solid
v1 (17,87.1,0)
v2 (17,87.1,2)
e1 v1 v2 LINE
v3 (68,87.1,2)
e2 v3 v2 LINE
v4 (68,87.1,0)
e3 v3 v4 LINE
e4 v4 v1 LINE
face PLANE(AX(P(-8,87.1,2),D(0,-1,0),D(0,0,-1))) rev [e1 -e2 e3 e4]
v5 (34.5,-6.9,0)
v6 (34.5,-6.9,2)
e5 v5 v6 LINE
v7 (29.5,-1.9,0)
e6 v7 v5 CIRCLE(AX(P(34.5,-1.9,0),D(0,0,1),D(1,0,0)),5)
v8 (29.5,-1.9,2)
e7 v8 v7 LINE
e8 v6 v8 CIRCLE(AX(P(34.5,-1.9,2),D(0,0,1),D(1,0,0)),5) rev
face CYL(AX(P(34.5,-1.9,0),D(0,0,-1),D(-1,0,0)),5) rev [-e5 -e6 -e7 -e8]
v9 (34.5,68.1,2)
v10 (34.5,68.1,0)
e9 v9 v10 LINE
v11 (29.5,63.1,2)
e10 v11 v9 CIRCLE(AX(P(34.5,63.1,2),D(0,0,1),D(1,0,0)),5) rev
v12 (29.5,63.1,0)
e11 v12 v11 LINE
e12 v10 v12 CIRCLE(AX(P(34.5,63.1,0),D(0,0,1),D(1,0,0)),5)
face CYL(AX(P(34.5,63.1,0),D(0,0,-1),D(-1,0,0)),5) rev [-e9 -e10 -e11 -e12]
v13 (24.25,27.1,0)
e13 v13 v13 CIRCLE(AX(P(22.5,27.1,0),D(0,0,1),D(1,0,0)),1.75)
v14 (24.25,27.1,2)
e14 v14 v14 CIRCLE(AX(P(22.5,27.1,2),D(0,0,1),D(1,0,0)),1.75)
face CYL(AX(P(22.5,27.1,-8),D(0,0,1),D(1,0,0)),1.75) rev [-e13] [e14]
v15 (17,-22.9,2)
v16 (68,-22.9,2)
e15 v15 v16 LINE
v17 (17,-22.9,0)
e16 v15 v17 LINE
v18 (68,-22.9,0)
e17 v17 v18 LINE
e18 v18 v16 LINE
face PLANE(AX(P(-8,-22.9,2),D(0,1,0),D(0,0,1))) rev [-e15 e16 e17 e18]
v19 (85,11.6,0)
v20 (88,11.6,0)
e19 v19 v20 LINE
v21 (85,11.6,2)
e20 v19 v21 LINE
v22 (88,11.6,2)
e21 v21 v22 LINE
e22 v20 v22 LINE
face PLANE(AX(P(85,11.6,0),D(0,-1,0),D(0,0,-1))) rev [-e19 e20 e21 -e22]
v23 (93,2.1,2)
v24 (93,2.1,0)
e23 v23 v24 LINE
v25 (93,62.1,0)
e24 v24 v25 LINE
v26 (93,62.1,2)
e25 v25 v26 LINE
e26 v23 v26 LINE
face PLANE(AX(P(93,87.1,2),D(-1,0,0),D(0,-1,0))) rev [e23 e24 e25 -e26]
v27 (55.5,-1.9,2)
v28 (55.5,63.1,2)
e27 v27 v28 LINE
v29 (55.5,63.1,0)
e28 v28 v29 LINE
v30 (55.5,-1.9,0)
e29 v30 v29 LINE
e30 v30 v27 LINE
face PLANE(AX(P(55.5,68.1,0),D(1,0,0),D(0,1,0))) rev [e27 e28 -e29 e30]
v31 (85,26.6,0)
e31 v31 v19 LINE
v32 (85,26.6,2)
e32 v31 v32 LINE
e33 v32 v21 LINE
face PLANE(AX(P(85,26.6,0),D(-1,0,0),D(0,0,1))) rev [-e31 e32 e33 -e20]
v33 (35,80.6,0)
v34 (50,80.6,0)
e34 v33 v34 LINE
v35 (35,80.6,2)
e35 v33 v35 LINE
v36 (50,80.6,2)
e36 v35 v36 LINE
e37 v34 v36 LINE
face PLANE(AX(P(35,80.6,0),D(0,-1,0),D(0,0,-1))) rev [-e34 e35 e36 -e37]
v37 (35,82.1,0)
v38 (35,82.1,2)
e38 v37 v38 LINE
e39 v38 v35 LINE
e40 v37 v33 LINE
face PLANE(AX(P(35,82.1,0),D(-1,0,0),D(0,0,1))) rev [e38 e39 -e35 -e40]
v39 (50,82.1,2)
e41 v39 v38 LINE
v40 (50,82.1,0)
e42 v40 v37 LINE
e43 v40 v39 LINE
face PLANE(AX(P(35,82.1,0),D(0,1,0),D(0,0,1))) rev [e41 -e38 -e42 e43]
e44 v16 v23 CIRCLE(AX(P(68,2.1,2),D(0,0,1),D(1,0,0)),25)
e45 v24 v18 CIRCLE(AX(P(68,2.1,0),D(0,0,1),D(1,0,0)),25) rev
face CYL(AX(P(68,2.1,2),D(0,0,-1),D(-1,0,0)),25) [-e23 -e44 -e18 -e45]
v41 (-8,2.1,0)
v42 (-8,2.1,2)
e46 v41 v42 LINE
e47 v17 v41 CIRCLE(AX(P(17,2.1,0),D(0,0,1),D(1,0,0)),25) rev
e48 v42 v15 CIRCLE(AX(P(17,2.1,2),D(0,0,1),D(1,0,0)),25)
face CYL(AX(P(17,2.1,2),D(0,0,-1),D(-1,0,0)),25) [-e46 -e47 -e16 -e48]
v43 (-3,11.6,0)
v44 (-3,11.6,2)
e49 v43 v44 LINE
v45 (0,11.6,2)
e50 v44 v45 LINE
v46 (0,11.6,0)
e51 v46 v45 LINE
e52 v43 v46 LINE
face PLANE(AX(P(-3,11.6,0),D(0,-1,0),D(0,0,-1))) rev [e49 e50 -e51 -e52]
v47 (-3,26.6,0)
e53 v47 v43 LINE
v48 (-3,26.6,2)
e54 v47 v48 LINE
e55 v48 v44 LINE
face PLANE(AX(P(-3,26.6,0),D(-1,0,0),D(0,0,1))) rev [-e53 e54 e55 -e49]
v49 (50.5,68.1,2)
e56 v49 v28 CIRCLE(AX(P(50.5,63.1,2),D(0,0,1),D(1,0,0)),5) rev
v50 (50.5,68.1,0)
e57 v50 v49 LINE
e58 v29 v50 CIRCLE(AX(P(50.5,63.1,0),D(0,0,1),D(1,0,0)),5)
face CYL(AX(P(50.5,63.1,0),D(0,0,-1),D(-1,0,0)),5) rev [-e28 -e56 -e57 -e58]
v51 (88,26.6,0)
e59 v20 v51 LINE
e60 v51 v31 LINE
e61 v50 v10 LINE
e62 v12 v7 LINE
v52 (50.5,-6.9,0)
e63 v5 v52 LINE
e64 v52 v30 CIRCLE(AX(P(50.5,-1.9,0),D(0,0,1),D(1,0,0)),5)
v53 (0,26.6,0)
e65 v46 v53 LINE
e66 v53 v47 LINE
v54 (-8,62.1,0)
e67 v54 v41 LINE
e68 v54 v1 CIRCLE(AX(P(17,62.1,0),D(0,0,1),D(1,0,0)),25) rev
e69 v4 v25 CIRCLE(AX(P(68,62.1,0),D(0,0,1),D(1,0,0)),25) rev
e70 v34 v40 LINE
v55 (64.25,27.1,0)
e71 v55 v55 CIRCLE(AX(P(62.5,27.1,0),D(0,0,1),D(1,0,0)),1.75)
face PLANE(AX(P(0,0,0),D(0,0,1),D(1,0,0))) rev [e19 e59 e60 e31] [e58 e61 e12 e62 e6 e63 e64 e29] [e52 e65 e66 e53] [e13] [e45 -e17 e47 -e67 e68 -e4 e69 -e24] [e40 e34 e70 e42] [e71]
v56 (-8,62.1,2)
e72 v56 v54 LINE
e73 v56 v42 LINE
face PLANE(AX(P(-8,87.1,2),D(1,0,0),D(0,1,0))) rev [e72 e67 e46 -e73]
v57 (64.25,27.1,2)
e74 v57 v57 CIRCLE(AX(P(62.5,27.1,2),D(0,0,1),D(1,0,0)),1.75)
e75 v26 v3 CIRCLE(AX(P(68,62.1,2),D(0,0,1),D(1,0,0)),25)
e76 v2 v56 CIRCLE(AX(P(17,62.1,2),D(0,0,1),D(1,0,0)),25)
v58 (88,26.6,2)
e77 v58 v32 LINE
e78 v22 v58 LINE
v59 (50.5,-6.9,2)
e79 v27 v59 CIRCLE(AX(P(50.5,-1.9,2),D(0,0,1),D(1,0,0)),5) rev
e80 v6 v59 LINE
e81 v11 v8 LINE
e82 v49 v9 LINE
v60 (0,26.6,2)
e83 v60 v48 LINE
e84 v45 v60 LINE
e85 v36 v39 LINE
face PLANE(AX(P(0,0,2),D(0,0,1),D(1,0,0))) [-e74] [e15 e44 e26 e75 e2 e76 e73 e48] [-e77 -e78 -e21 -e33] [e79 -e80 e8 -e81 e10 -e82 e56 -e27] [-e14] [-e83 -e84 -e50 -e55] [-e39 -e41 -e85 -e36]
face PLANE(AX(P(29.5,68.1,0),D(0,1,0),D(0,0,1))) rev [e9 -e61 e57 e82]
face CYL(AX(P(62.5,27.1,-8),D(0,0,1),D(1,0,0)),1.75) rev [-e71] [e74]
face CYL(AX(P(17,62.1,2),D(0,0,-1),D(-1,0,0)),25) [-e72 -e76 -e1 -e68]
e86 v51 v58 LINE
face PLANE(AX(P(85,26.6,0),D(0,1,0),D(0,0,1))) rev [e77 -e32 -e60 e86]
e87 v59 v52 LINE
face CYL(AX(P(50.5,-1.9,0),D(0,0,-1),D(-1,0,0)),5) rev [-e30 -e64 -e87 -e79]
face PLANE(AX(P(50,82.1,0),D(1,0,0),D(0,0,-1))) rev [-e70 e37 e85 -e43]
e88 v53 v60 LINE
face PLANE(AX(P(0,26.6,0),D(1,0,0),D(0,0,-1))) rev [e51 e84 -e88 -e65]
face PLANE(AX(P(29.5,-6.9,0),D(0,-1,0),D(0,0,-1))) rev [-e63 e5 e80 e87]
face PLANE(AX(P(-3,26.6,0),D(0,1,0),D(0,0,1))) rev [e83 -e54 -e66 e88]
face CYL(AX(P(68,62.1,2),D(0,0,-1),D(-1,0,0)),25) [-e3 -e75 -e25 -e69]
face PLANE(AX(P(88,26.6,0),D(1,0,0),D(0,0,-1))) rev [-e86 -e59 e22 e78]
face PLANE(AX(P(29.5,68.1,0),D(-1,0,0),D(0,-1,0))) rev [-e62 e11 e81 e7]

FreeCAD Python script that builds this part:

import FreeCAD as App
import Part
import Sketcher
from FreeCAD import Vector
Q = App.Units.Quantity


def edges_at(feature, points):
    """Names of the edges that pass closest to the given points."""
    edges = feature.Shape.Edges
    near = lambda p: min(range(len(edges)), key=lambda i: edges[i].distToShape(Part.Vertex(*p))[0])
    return sorted({f"Edge{near(p) + 1}" for p in points})


def add_polygon(sketch, points):
    """Adds a closed chain of lines whose ends are joined by coincident constraints."""
    first, n = sketch.GeometryCount, len(points)
    for a, b in zip(points, points[1:] + points[:1]):
        sketch.addGeometry(Part.LineSegment(App.Vector(*a, 0), App.Vector(*b, 0)), False)
    for i in range(n):
        sketch.addConstraint(Sketcher.Constraint("Coincident", first + i, 2, first + (i + 1) % n, 1))

doc = App.newDocument("Part")
body = doc.addObject("PartDesign::Body", "Body")

# Sketch on XY plane
sketch1 = body.newObject("Sketcher::SketchObject", "Sketch")
sketch1.AttachmentSupport = (doc.getObject("XY_Plane"), [""])
sketch1.MapMode = "FlatFace"
add_polygon(sketch1, [(-8, 87), (-8, -23), (93, -23), (93, 87)])  # lines 0-3
sketch1.addConstraint([
    Sketcher.Constraint("Vertical", 0),
    Sketcher.Constraint("Horizontal", 1),
    Sketcher.Constraint("Vertical", 2),
    Sketcher.Constraint("Horizontal", 3),
    Sketcher.Constraint("DistanceX", 1, 1, 1, 2, Q("101 mm")),
    Sketcher.Constraint("DistanceY", 0, 2, 0, 1, Q("110 mm")),
    Sketcher.Constraint("DistanceX", 0, 2, -1, 1, Q("8 mm")),
    Sketcher.Constraint("DistanceY", 0, 2, -1, 1, Q("22.9 mm")),
])
pad1 = body.newObject("PartDesign::Pad", "Pad")
pad1.Profile = sketch1
pad1.Length = 2

# Sketch on XY plane
sketch2 = body.newObject("Sketcher::SketchObject", "Sketch001")
sketch2.AttachmentSupport = (doc.getObject("XY_Plane"), [""])
sketch2.MapMode = "FlatFace"
sketch2.AttachmentOffset = App.Placement(Vector(0, 0, 2), App.Rotation())
add_polygon(sketch2, [(35, 82.1), (35, 80.6), (50, 80.6), (50, 82.1)])  # lines 0-3
add_polygon(sketch2, [(-3, 26.6), (-3, 11.6), (0, 11.6), (0, 26.6)])  # lines 4-7
add_polygon(sketch2, [(85, 26.6), (85, 11.6), (88, 11.6), (88, 26.6)])  # lines 8-11
sketch2.addConstraint([
    Sketcher.Constraint("Vertical", 0),
    Sketcher.Constraint("Horizontal", 1),
    Sketcher.Constraint("Vertical", 2),
    Sketcher.Constraint("Horizontal", 3),
    Sketcher.Constraint("Vertical", 4),
    Sketcher.Constraint("Horizontal", 5),
    Sketcher.Constraint("Vertical", 6),
    Sketcher.Constraint("Horizontal", 7),
    Sketcher.Constraint("Vertical", 8),
    Sketcher.Constraint("Horizontal", 9),
    Sketcher.Constraint("Vertical", 10),
    Sketcher.Constraint("Horizontal", 11),
    Sketcher.Constraint("PointOnObject", 5, 2, -2),
    Sketcher.Constraint("Horizontal", 5, 2, 8, 2),
    Sketcher.Constraint("Horizontal", 7, 2, 10, 2),
    Sketcher.Constraint("Equal", 7, 9),
    Sketcher.Constraint("Equal", 3, 4),
    Sketcher.Constraint("DistanceX", 1, 1, 1, 2, Q("15 mm")),
    Sketcher.Constraint("DistanceX", 5, 1, 5, 2, Q("3 mm")),
    Sketcher.Constraint("DistanceY", 0, 2, 0, 1, Q("1.5 mm")),
    Sketcher.Constraint("DistanceX", -1, 1, 0, 2, Q("35 mm")),
    Sketcher.Constraint("DistanceX", -1, 1, 8, 2, Q("85 mm")),
    Sketcher.Constraint("DistanceY", 4, 2, 0, 2, Q("69 mm")),
    Sketcher.Constraint("DistanceY", -1, 1, 0, 2, Q("80.6 mm")),
])
pocket1 = body.newObject("PartDesign::Pocket", "Pocket")
pocket1.Profile = sketch2
pocket1.Type = "ThroughAll"
doc.recompute()

fillet = body.newObject("PartDesign::Fillet", "Fillet")
fillet.Base = (pocket1, edges_at(pocket1, [
    (-8, 87.1, 1),
    (93, 87.1, 1),
    (93, -22.9, 1),
    (-8, -22.9, 1),
]))
fillet.Radius = 25

# Sketch on XY plane
sketch3 = body.newObject("Sketcher::SketchObject", "Sketch002")
sketch3.AttachmentSupport = (doc.getObject("XY_Plane"), [""])
sketch3.MapMode = "FlatFace"
sketch3.AttachmentOffset = App.Placement(Vector(0, 0, 2), App.Rotation())
add_polygon(sketch3, [(30, 68), (30, -7), (56, -7), (56, 68)])  # lines 0-3
sketch3.addConstraint([
    Sketcher.Constraint("Vertical", 0),
    Sketcher.Constraint("Horizontal", 1),
    Sketcher.Constraint("Vertical", 2),
    Sketcher.Constraint("Horizontal", 3),
    Sketcher.Constraint("DistanceX", 1, 1, 1, 2, Q("26 mm")),
    Sketcher.Constraint("DistanceY", 0, 2, 0, 1, Q("75 mm")),
    Sketcher.Constraint("DistanceX", -1, 1, 0, 2, Q("29.5 mm")),
    Sketcher.Constraint("DistanceY", 0, 2, -1, 1, Q("6.9 mm")),
])
pocket2 = body.newObject("PartDesign::Pocket", "Pocket001")
pocket2.Profile = sketch3
pocket2.Type = "ThroughAll"
doc.recompute()

fillet2 = body.newObject("PartDesign::Fillet", "Fillet001")
fillet2.Base = (pocket2, edges_at(pocket2, [
    (29.5, -6.9, 1),
    (29.5, 68.1, 1),
    (55.5, 68.1, 1),
    (55.5, -6.9, 1),
]))
fillet2.Radius = 5

# Sketch on XY plane
sketch4 = body.newObject("Sketcher::SketchObject", "Sketch003")
sketch4.AttachmentSupport = (doc.getObject("XY_Plane"), [""])
sketch4.MapMode = "FlatFace"
sketch4.AttachmentOffset = App.Placement(Vector(0, 0, 2), App.Rotation())
sketch4.addGeometry([
    Part.Circle(Vector(22.5, 27.1, 0), Vector(0, 0, 1), 1.8),
    Part.Circle(Vector(62.5, 27.1, 0), Vector(0, 0, 1), 1.8),
], False)
sketch4.addConstraint([
    Sketcher.Constraint("Equal", 0, 1),
    Sketcher.Constraint("Horizontal", 0, 3, 1, 3),
    Sketcher.Constraint("Diameter", 0, Q("3.5 mm")),
    Sketcher.Constraint("DistanceX", 0, 3, 1, 3, Q("40 mm")),
    Sketcher.Constraint("DistanceX", -1, 1, 0, 3, Q("22.5 mm")),
    Sketcher.Constraint("DistanceY", -1, 1, 0, 3, Q("27.1 mm")),
])
pocket3 = body.newObject("PartDesign::Pocket", "Pocket002")
pocket3.Profile = sketch4
pocket3.Length = 10

doc.recompute()
